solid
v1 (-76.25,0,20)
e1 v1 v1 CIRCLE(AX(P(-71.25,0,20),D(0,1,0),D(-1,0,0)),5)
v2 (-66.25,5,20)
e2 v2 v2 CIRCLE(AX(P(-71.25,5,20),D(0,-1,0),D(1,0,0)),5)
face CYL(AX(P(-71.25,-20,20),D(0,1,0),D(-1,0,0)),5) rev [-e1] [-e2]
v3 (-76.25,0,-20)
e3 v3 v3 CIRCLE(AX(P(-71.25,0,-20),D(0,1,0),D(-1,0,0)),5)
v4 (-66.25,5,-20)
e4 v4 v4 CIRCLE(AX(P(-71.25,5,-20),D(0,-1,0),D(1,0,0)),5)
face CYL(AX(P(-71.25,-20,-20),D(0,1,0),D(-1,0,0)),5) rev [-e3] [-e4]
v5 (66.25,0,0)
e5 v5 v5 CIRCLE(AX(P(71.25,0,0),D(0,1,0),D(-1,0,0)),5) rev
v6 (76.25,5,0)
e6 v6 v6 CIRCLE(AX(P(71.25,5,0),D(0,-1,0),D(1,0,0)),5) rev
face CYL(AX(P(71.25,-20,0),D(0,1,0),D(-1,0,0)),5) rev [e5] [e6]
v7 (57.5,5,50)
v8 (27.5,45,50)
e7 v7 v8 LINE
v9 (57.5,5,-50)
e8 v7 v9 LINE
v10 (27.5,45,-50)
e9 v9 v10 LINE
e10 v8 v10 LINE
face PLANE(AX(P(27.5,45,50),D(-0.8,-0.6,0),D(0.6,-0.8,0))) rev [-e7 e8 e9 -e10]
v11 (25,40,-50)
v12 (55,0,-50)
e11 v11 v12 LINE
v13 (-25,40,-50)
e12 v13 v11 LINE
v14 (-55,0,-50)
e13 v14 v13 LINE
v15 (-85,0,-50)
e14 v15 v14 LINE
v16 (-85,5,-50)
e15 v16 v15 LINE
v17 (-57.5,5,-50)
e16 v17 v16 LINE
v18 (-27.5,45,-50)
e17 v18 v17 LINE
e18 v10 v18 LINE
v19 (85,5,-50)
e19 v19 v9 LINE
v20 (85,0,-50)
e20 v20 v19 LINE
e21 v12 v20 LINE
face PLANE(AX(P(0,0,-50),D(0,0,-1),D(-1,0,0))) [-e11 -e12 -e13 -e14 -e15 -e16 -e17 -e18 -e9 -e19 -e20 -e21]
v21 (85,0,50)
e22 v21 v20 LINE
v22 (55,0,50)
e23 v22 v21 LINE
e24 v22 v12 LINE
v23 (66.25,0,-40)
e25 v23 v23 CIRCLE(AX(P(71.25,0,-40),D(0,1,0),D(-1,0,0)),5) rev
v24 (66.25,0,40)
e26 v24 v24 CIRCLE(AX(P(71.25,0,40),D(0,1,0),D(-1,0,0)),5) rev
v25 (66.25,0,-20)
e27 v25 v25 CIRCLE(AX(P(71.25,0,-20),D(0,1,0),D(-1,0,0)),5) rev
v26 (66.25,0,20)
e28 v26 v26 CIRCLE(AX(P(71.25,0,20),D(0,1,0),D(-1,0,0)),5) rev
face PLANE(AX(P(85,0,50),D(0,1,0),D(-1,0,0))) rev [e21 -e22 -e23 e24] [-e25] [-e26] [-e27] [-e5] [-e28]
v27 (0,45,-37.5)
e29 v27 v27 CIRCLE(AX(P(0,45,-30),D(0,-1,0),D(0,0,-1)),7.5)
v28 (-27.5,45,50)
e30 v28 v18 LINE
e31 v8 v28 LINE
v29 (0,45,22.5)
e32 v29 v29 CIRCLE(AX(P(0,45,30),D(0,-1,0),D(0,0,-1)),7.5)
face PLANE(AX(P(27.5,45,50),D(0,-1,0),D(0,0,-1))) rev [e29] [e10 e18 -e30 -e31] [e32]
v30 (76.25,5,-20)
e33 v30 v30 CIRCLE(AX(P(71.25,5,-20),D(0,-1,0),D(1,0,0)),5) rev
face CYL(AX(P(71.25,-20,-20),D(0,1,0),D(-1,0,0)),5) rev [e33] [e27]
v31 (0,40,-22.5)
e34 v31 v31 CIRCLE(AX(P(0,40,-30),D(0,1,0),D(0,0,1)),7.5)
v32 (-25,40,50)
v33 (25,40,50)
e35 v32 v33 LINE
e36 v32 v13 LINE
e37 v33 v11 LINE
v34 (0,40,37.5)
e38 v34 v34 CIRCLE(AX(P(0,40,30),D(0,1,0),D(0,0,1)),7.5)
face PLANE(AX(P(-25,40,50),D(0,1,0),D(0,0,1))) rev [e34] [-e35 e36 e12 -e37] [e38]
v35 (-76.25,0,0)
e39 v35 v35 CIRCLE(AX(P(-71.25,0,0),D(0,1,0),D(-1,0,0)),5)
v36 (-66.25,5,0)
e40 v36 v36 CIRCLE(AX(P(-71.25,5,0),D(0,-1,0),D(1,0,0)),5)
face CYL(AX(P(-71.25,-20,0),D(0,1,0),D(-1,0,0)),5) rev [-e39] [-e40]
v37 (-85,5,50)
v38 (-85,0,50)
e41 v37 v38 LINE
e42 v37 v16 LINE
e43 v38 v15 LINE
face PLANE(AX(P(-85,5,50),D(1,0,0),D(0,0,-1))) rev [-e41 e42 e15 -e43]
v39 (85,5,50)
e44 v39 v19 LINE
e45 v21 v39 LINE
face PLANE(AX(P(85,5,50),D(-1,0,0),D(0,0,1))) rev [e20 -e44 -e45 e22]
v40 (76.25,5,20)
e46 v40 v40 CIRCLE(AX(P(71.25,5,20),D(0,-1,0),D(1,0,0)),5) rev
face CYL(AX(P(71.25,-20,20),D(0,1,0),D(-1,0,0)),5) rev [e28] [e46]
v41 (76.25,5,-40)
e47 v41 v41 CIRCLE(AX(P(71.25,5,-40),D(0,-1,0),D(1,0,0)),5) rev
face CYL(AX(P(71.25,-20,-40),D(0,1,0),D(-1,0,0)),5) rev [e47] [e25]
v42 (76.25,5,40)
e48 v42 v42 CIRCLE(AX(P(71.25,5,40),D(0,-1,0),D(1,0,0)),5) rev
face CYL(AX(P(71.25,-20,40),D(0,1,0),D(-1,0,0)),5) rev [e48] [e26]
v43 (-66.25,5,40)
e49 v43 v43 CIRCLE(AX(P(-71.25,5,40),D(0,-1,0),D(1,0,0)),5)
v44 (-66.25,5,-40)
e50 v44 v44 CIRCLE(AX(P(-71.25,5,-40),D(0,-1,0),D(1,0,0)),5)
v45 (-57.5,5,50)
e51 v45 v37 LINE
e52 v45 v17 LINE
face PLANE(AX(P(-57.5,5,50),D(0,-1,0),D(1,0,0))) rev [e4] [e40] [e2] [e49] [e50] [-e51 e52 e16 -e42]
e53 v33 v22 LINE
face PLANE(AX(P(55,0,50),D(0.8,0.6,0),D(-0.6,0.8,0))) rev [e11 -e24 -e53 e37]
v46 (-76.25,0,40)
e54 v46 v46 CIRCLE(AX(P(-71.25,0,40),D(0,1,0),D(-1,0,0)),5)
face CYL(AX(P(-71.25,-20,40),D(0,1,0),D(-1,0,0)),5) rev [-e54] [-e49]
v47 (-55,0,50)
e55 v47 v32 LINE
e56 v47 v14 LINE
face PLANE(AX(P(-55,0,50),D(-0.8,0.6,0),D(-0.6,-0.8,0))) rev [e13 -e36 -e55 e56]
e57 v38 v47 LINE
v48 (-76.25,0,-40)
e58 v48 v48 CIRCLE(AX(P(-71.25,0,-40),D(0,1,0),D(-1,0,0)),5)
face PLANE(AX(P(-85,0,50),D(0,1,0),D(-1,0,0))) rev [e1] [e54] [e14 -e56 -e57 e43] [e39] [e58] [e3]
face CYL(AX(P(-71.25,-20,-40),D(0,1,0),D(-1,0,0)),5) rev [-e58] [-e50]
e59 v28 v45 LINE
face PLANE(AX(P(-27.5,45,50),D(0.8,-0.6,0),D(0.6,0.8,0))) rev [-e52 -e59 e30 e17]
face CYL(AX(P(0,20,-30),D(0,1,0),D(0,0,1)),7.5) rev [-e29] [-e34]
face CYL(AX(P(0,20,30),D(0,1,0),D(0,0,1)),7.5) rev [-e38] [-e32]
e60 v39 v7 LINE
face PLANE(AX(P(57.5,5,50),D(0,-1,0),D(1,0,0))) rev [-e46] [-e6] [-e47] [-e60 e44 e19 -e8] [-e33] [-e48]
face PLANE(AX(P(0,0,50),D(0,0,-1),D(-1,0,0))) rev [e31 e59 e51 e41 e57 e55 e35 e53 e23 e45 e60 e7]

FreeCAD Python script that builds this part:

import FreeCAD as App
import Part
import Sketcher
from FreeCAD import Vector

doc = App.newDocument("Part")
body = doc.addObject("PartDesign::Body", "Body")

sketch1 = body.newObject("Sketcher::SketchObject", "Sketch")
sketch1.AttachmentSupport = (doc.getObject("XY_Plane"), [""])
sketch1.MapMode = "FlatFace"
sketch1.addGeometry(Part.LineSegment(Vector(27.5, 45, 0), Vector(-27.5, 45, 0)), False)
sketch1.addGeometry(Part.LineSegment(Vector(-27.5, 45, 0), Vector(-57.5, 5, 0)), False)
sketch1.addGeometry(Part.LineSegment(Vector(-57.5, 5, 0), Vector(-85, 5, 0)), False)
sketch1.addGeometry(Part.LineSegment(Vector(-85, 5, 0), Vector(-85, 0, 0)), False)
sketch1.addGeometry(Part.LineSegment(Vector(-85, 0, 0), Vector(-55, 0, 0)), False)
sketch1.addGeometry(Part.LineSegment(Vector(-55, 0, 0), Vector(-25, 40, 0)), False)
sketch1.addGeometry(Part.LineSegment(Vector(-25, 40, 0), Vector(25, 40, 0)), False)
sketch1.addGeometry(Part.LineSegment(Vector(25, 40, 0), Vector(55, 0, 0)), False)
sketch1.addGeometry(Part.LineSegment(Vector(55, 0, 0), Vector(85, 0, 0)), False)
sketch1.addGeometry(Part.LineSegment(Vector(85, 0, 0), Vector(85, 5, 0)), False)
sketch1.addGeometry(Part.LineSegment(Vector(85, 5, 0), Vector(57.5, 5, 0)), False)
sketch1.addGeometry(Part.LineSegment(Vector(57.5, 5, 0), Vector(27.5, 45, 0)), False)
sketch1.addConstraint(Sketcher.Constraint("Coincident", 0, 2, 1, 1))
sketch1.addConstraint(Sketcher.Constraint("Coincident", 1, 2, 2, 1))
sketch1.addConstraint(Sketcher.Constraint("Coincident", 2, 2, 3, 1))
sketch1.addConstraint(Sketcher.Constraint("Coincident", 3, 2, 4, 1))
sketch1.addConstraint(Sketcher.Constraint("Coincident", 4, 2, 5, 1))
sketch1.addConstraint(Sketcher.Constraint("Coincident", 5, 2, 6, 1))
sketch1.addConstraint(Sketcher.Constraint("Coincident", 6, 2, 7, 1))
sketch1.addConstraint(Sketcher.Constraint("Coincident", 7, 2, 8, 1))
sketch1.addConstraint(Sketcher.Constraint("Coincident", 8, 2, 9, 1))
sketch1.addConstraint(Sketcher.Constraint("Coincident", 9, 2, 10, 1))
sketch1.addConstraint(Sketcher.Constraint("Coincident", 10, 2, 11, 1))
sketch1.addConstraint(Sketcher.Constraint("Coincident", 11, 2, 0, 1))
sketch1.addConstraint(Sketcher.Constraint("Horizontal", 0))
sketch1.addConstraint(Sketcher.Constraint("Horizontal", 2))
sketch1.addConstraint(Sketcher.Constraint("Vertical", 3))
sketch1.addConstraint(Sketcher.Constraint("Horizontal", 4))
sketch1.addConstraint(Sketcher.Constraint("Horizontal", 6))
sketch1.addConstraint(Sketcher.Constraint("Horizontal", 8))
sketch1.addConstraint(Sketcher.Constraint("Vertical", 9))
sketch1.addConstraint(Sketcher.Constraint("Horizontal", 10))
sketch1.addConstraint(Sketcher.Constraint("Symmetric", 4, 2, 7, 2, -1, 1))
sketch1.addConstraint(Sketcher.Constraint("Symmetric", 3, 2, 8, 2, -2))
sketch1.addConstraint(Sketcher.Constraint("Symmetric", 1, 2, 10, 2, -2))
sketch1.addConstraint(Sketcher.Constraint("Parallel", 1, 5))
sketch1.addConstraint(Sketcher.Constraint("Parallel", 7, 11))
sketch1.addConstraint(Sketcher.Constraint("Equal", 1, 5))
sketch1.addConstraint(Sketcher.Constraint("Equal", 5, 7))
sketch1.addConstraint(Sketcher.Constraint("DistanceX", 0, 2, 0, 1, 55.0))
sketch1.addConstraint(Sketcher.Constraint("DistanceX", 4, 1, 4, 2, 30.0))
sketch1.addConstraint(Sketcher.Constraint("DistanceX", 6, 1, 6, 2, 50.0))
sketch1.addConstraint(Sketcher.Constraint("DistanceY", 3, 2, 3, 1, 5.0))
sketch1.addConstraint(Sketcher.Constraint("Distance", 1, 50.0))
sketch1.addConstraint(Sketcher.Constraint("DistanceY", -1, 1, 0, 2, 45.0))
pad1 = body.newObject("PartDesign::Pad", "Pad")
pad1.Profile = sketch1
pad1.Length = 100
pad1.Midplane = True

sketch2 = body.newObject("Sketcher::SketchObject", "Sketch001")
sketch2.AttachmentSupport = (doc.getObject("XZ_Plane"), [""])
sketch2.MapMode = "FlatFace"
sketch2.AttachmentOffset = App.Placement(Vector(0, 0, -5), App.Rotation())
sketch2.addGeometry(Part.Circle(Vector(-71.25, 40, 0), Vector(0, 0, 1), 5), False)
sketch2.addGeometry(Part.Circle(Vector(-71.25, 20, 0), Vector(0, 0, 1), 5), False)
sketch2.addGeometry(Part.Circle(Vector(-71.25, 0, 0), Vector(0, 0, 1), 5), False)
sketch2.addGeometry(Part.Circle(Vector(-71.25, -20, 0), Vector(0, 0, 1), 5), False)
sketch2.addGeometry(Part.Circle(Vector(-71.25, -40, 0), Vector(0, 0, 1), 5), False)
sketch2.addConstraint(Sketcher.Constraint("Equal", 0, 1))
sketch2.addConstraint(Sketcher.Constraint("Equal", 1, 2))
sketch2.addConstraint(Sketcher.Constraint("Equal", 2, 3))
sketch2.addConstraint(Sketcher.Constraint("Equal", 3, 4))
sketch2.addConstraint(Sketcher.Constraint("Symmetric", 1, 3, 3, 3, -1))
sketch2.addConstraint(Sketcher.Constraint("Symmetric", 0, 3, 4, 3, -1))
sketch2.addConstraint(Sketcher.Constraint("PointOnObject", 2, 3, -1))
sketch2.addConstraint(Sketcher.Constraint("Vertical", 0, 3, 1, 3))
sketch2.addConstraint(Sketcher.Constraint("Vertical", 1, 3, 2, 3))
sketch2.addConstraint(Sketcher.Constraint("Diameter", 0, 10.0))
sketch2.addConstraint(Sketcher.Constraint("DistanceY", -1, 1, 0, 3, 40.0))
sketch2.addConstraint(Sketcher.Constraint("DistanceY", -1, 1, 1, 3, 20.0))
sketch2.addConstraint(Sketcher.Constraint("DistanceX", 0, 3, -1, 1, 71.25))
pocket1 = body.newObject("PartDesign::Pocket", "Pocket")
pocket1.Profile = sketch2
pocket1.Length = 50
pocket1.Midplane = True
doc.recompute()

mirrored = body.newObject("PartDesign::Mirrored", "Mirrored")
mirrored.Originals = [pocket1]
mirrored.MirrorPlane = (doc.getObject("YZ_Plane"), [""])
body.Tip = mirrored

sketch3 = body.newObject("Sketcher::SketchObject", "Sketch002")
sketch3.AttachmentSupport = (doc.getObject("XZ_Plane"), [""])
sketch3.MapMode = "FlatFace"
sketch3.AttachmentOffset = App.Placement(Vector(0, 0, -45), App.Rotation())
sketch3.addGeometry(Part.Circle(Vector(0, 30, 0), Vector(0, 0, 1), 7.5), False)
sketch3.addGeometry(Part.Circle(Vector(0, -30, 0), Vector(0, 0, 1), 7.5), False)
sketch3.addConstraint(Sketcher.Constraint("Equal", 0, 1))
sketch3.addConstraint(Sketcher.Constraint("Symmetric", 0, 3, 1, 3, -1, 1))
sketch3.addConstraint(Sketcher.Constraint("PointOnObject", 0, 3, -2))
sketch3.addConstraint(Sketcher.Constraint("Diameter", 0, 15.0))
sketch3.addConstraint(Sketcher.Constraint("DistanceY", -1, 1, 0, 3, 30.0))
pocket2 = body.newObject("PartDesign::Pocket", "Pocket001")
pocket2.Profile = sketch3
pocket2.Length = 50
pocket2.Midplane = True

doc.recompute()
